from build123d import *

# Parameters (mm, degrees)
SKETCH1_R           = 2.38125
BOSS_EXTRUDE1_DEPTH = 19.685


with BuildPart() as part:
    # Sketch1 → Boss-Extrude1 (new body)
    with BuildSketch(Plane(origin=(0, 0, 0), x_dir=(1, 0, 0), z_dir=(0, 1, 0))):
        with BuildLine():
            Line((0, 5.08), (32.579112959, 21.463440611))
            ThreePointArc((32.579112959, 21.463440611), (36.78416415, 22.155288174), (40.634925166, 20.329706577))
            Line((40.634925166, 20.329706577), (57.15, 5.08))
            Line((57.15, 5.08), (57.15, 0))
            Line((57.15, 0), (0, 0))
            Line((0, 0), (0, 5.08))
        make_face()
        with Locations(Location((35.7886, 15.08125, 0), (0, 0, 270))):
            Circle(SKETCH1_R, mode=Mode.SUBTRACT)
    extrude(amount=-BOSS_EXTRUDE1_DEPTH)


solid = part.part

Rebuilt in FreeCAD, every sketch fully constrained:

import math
import FreeCAD as App
import Part
import Sketcher
Q = App.Units.Quantity

doc = App.newDocument("Part")
body = doc.addObject("PartDesign::Body", "Body")

# Sketch on XZ plane
sketch1 = body.newObject("Sketcher::SketchObject", "Sketch")
sketch1.AttachmentSupport = (doc.getObject("XZ_Plane"), [""])
sketch1.MapMode = "FlatFace"
sketch1.addGeometry([
    Part.LineSegment(App.Vector(32.6, -21.5, 0), App.Vector(0, -5.1, 0)),  # 0
    Part.LineSegment(App.Vector(0, -5.1, 0), App.Vector(0, 0, 0)),  # 1
    Part.LineSegment(App.Vector(0, 0, 0), App.Vector(57.1, 0, 0)),  # 2
    Part.LineSegment(App.Vector(57.1, 0, 0), App.Vector(57.1, -5.1, 0)),  # 3
    Part.LineSegment(App.Vector(57.1, -5.1, 0), App.Vector(40.6, -20.3, 0)),  # 4
    Part.ArcOfCircle(Part.Circle(App.Vector(35.8, -15.1, 0), App.Vector(0, 0, 1), 7.1), math.radians(-117), math.radians(-47)),  # 5
    Part.Circle(App.Vector(35.8, -15.1, 0), App.Vector(0, 0, 1), 2.4),  # 6
], False)
sketch1.addConstraint([
    Sketcher.Constraint("Coincident", 0, 2, 1, 1),
    Sketcher.Constraint("Coincident", 1, 2, 2, 1),
    Sketcher.Constraint("Coincident", 2, 2, 3, 1),
    Sketcher.Constraint("Coincident", 3, 2, 4, 1),
    Sketcher.Constraint("Tangent", 4, 2, 5, 2),
    Sketcher.Constraint("Tangent", 5, 1, 0, 1),
    Sketcher.Constraint("Vertical", 1),
    Sketcher.Constraint("Horizontal", 2),
    Sketcher.Constraint("Vertical", 3),
    Sketcher.Constraint("Coincident", 1, 2, -1, 1),
    Sketcher.Constraint("Coincident", 6, 3, 5, 3),
    Sketcher.Constraint("Horizontal", 0, 2, 3, 2),
    Sketcher.Constraint("Diameter", 6, Q("0.1875 in")),
    Sketcher.Constraint("DistanceY", 1, 1, 1, 2, Q("0.2 in")),
    Sketcher.Constraint("Radius", 5, Q("0.28125 in")),
    Sketcher.Constraint("DistanceX", 2, 1, 2, 2, Q("2.25 in")),
    Sketcher.Constraint("DistanceX", -1, 1, 5, 3, Q("1.409 in")),
    Sketcher.Constraint("DistanceY", 5, 3, -1, 1, Q("0.59375 in")),
])
pad1 = body.newObject("PartDesign::Pad", "Pad")
pad1.Profile = sketch1
pad1.Length = Q("0.775 in")

doc.recompute()
